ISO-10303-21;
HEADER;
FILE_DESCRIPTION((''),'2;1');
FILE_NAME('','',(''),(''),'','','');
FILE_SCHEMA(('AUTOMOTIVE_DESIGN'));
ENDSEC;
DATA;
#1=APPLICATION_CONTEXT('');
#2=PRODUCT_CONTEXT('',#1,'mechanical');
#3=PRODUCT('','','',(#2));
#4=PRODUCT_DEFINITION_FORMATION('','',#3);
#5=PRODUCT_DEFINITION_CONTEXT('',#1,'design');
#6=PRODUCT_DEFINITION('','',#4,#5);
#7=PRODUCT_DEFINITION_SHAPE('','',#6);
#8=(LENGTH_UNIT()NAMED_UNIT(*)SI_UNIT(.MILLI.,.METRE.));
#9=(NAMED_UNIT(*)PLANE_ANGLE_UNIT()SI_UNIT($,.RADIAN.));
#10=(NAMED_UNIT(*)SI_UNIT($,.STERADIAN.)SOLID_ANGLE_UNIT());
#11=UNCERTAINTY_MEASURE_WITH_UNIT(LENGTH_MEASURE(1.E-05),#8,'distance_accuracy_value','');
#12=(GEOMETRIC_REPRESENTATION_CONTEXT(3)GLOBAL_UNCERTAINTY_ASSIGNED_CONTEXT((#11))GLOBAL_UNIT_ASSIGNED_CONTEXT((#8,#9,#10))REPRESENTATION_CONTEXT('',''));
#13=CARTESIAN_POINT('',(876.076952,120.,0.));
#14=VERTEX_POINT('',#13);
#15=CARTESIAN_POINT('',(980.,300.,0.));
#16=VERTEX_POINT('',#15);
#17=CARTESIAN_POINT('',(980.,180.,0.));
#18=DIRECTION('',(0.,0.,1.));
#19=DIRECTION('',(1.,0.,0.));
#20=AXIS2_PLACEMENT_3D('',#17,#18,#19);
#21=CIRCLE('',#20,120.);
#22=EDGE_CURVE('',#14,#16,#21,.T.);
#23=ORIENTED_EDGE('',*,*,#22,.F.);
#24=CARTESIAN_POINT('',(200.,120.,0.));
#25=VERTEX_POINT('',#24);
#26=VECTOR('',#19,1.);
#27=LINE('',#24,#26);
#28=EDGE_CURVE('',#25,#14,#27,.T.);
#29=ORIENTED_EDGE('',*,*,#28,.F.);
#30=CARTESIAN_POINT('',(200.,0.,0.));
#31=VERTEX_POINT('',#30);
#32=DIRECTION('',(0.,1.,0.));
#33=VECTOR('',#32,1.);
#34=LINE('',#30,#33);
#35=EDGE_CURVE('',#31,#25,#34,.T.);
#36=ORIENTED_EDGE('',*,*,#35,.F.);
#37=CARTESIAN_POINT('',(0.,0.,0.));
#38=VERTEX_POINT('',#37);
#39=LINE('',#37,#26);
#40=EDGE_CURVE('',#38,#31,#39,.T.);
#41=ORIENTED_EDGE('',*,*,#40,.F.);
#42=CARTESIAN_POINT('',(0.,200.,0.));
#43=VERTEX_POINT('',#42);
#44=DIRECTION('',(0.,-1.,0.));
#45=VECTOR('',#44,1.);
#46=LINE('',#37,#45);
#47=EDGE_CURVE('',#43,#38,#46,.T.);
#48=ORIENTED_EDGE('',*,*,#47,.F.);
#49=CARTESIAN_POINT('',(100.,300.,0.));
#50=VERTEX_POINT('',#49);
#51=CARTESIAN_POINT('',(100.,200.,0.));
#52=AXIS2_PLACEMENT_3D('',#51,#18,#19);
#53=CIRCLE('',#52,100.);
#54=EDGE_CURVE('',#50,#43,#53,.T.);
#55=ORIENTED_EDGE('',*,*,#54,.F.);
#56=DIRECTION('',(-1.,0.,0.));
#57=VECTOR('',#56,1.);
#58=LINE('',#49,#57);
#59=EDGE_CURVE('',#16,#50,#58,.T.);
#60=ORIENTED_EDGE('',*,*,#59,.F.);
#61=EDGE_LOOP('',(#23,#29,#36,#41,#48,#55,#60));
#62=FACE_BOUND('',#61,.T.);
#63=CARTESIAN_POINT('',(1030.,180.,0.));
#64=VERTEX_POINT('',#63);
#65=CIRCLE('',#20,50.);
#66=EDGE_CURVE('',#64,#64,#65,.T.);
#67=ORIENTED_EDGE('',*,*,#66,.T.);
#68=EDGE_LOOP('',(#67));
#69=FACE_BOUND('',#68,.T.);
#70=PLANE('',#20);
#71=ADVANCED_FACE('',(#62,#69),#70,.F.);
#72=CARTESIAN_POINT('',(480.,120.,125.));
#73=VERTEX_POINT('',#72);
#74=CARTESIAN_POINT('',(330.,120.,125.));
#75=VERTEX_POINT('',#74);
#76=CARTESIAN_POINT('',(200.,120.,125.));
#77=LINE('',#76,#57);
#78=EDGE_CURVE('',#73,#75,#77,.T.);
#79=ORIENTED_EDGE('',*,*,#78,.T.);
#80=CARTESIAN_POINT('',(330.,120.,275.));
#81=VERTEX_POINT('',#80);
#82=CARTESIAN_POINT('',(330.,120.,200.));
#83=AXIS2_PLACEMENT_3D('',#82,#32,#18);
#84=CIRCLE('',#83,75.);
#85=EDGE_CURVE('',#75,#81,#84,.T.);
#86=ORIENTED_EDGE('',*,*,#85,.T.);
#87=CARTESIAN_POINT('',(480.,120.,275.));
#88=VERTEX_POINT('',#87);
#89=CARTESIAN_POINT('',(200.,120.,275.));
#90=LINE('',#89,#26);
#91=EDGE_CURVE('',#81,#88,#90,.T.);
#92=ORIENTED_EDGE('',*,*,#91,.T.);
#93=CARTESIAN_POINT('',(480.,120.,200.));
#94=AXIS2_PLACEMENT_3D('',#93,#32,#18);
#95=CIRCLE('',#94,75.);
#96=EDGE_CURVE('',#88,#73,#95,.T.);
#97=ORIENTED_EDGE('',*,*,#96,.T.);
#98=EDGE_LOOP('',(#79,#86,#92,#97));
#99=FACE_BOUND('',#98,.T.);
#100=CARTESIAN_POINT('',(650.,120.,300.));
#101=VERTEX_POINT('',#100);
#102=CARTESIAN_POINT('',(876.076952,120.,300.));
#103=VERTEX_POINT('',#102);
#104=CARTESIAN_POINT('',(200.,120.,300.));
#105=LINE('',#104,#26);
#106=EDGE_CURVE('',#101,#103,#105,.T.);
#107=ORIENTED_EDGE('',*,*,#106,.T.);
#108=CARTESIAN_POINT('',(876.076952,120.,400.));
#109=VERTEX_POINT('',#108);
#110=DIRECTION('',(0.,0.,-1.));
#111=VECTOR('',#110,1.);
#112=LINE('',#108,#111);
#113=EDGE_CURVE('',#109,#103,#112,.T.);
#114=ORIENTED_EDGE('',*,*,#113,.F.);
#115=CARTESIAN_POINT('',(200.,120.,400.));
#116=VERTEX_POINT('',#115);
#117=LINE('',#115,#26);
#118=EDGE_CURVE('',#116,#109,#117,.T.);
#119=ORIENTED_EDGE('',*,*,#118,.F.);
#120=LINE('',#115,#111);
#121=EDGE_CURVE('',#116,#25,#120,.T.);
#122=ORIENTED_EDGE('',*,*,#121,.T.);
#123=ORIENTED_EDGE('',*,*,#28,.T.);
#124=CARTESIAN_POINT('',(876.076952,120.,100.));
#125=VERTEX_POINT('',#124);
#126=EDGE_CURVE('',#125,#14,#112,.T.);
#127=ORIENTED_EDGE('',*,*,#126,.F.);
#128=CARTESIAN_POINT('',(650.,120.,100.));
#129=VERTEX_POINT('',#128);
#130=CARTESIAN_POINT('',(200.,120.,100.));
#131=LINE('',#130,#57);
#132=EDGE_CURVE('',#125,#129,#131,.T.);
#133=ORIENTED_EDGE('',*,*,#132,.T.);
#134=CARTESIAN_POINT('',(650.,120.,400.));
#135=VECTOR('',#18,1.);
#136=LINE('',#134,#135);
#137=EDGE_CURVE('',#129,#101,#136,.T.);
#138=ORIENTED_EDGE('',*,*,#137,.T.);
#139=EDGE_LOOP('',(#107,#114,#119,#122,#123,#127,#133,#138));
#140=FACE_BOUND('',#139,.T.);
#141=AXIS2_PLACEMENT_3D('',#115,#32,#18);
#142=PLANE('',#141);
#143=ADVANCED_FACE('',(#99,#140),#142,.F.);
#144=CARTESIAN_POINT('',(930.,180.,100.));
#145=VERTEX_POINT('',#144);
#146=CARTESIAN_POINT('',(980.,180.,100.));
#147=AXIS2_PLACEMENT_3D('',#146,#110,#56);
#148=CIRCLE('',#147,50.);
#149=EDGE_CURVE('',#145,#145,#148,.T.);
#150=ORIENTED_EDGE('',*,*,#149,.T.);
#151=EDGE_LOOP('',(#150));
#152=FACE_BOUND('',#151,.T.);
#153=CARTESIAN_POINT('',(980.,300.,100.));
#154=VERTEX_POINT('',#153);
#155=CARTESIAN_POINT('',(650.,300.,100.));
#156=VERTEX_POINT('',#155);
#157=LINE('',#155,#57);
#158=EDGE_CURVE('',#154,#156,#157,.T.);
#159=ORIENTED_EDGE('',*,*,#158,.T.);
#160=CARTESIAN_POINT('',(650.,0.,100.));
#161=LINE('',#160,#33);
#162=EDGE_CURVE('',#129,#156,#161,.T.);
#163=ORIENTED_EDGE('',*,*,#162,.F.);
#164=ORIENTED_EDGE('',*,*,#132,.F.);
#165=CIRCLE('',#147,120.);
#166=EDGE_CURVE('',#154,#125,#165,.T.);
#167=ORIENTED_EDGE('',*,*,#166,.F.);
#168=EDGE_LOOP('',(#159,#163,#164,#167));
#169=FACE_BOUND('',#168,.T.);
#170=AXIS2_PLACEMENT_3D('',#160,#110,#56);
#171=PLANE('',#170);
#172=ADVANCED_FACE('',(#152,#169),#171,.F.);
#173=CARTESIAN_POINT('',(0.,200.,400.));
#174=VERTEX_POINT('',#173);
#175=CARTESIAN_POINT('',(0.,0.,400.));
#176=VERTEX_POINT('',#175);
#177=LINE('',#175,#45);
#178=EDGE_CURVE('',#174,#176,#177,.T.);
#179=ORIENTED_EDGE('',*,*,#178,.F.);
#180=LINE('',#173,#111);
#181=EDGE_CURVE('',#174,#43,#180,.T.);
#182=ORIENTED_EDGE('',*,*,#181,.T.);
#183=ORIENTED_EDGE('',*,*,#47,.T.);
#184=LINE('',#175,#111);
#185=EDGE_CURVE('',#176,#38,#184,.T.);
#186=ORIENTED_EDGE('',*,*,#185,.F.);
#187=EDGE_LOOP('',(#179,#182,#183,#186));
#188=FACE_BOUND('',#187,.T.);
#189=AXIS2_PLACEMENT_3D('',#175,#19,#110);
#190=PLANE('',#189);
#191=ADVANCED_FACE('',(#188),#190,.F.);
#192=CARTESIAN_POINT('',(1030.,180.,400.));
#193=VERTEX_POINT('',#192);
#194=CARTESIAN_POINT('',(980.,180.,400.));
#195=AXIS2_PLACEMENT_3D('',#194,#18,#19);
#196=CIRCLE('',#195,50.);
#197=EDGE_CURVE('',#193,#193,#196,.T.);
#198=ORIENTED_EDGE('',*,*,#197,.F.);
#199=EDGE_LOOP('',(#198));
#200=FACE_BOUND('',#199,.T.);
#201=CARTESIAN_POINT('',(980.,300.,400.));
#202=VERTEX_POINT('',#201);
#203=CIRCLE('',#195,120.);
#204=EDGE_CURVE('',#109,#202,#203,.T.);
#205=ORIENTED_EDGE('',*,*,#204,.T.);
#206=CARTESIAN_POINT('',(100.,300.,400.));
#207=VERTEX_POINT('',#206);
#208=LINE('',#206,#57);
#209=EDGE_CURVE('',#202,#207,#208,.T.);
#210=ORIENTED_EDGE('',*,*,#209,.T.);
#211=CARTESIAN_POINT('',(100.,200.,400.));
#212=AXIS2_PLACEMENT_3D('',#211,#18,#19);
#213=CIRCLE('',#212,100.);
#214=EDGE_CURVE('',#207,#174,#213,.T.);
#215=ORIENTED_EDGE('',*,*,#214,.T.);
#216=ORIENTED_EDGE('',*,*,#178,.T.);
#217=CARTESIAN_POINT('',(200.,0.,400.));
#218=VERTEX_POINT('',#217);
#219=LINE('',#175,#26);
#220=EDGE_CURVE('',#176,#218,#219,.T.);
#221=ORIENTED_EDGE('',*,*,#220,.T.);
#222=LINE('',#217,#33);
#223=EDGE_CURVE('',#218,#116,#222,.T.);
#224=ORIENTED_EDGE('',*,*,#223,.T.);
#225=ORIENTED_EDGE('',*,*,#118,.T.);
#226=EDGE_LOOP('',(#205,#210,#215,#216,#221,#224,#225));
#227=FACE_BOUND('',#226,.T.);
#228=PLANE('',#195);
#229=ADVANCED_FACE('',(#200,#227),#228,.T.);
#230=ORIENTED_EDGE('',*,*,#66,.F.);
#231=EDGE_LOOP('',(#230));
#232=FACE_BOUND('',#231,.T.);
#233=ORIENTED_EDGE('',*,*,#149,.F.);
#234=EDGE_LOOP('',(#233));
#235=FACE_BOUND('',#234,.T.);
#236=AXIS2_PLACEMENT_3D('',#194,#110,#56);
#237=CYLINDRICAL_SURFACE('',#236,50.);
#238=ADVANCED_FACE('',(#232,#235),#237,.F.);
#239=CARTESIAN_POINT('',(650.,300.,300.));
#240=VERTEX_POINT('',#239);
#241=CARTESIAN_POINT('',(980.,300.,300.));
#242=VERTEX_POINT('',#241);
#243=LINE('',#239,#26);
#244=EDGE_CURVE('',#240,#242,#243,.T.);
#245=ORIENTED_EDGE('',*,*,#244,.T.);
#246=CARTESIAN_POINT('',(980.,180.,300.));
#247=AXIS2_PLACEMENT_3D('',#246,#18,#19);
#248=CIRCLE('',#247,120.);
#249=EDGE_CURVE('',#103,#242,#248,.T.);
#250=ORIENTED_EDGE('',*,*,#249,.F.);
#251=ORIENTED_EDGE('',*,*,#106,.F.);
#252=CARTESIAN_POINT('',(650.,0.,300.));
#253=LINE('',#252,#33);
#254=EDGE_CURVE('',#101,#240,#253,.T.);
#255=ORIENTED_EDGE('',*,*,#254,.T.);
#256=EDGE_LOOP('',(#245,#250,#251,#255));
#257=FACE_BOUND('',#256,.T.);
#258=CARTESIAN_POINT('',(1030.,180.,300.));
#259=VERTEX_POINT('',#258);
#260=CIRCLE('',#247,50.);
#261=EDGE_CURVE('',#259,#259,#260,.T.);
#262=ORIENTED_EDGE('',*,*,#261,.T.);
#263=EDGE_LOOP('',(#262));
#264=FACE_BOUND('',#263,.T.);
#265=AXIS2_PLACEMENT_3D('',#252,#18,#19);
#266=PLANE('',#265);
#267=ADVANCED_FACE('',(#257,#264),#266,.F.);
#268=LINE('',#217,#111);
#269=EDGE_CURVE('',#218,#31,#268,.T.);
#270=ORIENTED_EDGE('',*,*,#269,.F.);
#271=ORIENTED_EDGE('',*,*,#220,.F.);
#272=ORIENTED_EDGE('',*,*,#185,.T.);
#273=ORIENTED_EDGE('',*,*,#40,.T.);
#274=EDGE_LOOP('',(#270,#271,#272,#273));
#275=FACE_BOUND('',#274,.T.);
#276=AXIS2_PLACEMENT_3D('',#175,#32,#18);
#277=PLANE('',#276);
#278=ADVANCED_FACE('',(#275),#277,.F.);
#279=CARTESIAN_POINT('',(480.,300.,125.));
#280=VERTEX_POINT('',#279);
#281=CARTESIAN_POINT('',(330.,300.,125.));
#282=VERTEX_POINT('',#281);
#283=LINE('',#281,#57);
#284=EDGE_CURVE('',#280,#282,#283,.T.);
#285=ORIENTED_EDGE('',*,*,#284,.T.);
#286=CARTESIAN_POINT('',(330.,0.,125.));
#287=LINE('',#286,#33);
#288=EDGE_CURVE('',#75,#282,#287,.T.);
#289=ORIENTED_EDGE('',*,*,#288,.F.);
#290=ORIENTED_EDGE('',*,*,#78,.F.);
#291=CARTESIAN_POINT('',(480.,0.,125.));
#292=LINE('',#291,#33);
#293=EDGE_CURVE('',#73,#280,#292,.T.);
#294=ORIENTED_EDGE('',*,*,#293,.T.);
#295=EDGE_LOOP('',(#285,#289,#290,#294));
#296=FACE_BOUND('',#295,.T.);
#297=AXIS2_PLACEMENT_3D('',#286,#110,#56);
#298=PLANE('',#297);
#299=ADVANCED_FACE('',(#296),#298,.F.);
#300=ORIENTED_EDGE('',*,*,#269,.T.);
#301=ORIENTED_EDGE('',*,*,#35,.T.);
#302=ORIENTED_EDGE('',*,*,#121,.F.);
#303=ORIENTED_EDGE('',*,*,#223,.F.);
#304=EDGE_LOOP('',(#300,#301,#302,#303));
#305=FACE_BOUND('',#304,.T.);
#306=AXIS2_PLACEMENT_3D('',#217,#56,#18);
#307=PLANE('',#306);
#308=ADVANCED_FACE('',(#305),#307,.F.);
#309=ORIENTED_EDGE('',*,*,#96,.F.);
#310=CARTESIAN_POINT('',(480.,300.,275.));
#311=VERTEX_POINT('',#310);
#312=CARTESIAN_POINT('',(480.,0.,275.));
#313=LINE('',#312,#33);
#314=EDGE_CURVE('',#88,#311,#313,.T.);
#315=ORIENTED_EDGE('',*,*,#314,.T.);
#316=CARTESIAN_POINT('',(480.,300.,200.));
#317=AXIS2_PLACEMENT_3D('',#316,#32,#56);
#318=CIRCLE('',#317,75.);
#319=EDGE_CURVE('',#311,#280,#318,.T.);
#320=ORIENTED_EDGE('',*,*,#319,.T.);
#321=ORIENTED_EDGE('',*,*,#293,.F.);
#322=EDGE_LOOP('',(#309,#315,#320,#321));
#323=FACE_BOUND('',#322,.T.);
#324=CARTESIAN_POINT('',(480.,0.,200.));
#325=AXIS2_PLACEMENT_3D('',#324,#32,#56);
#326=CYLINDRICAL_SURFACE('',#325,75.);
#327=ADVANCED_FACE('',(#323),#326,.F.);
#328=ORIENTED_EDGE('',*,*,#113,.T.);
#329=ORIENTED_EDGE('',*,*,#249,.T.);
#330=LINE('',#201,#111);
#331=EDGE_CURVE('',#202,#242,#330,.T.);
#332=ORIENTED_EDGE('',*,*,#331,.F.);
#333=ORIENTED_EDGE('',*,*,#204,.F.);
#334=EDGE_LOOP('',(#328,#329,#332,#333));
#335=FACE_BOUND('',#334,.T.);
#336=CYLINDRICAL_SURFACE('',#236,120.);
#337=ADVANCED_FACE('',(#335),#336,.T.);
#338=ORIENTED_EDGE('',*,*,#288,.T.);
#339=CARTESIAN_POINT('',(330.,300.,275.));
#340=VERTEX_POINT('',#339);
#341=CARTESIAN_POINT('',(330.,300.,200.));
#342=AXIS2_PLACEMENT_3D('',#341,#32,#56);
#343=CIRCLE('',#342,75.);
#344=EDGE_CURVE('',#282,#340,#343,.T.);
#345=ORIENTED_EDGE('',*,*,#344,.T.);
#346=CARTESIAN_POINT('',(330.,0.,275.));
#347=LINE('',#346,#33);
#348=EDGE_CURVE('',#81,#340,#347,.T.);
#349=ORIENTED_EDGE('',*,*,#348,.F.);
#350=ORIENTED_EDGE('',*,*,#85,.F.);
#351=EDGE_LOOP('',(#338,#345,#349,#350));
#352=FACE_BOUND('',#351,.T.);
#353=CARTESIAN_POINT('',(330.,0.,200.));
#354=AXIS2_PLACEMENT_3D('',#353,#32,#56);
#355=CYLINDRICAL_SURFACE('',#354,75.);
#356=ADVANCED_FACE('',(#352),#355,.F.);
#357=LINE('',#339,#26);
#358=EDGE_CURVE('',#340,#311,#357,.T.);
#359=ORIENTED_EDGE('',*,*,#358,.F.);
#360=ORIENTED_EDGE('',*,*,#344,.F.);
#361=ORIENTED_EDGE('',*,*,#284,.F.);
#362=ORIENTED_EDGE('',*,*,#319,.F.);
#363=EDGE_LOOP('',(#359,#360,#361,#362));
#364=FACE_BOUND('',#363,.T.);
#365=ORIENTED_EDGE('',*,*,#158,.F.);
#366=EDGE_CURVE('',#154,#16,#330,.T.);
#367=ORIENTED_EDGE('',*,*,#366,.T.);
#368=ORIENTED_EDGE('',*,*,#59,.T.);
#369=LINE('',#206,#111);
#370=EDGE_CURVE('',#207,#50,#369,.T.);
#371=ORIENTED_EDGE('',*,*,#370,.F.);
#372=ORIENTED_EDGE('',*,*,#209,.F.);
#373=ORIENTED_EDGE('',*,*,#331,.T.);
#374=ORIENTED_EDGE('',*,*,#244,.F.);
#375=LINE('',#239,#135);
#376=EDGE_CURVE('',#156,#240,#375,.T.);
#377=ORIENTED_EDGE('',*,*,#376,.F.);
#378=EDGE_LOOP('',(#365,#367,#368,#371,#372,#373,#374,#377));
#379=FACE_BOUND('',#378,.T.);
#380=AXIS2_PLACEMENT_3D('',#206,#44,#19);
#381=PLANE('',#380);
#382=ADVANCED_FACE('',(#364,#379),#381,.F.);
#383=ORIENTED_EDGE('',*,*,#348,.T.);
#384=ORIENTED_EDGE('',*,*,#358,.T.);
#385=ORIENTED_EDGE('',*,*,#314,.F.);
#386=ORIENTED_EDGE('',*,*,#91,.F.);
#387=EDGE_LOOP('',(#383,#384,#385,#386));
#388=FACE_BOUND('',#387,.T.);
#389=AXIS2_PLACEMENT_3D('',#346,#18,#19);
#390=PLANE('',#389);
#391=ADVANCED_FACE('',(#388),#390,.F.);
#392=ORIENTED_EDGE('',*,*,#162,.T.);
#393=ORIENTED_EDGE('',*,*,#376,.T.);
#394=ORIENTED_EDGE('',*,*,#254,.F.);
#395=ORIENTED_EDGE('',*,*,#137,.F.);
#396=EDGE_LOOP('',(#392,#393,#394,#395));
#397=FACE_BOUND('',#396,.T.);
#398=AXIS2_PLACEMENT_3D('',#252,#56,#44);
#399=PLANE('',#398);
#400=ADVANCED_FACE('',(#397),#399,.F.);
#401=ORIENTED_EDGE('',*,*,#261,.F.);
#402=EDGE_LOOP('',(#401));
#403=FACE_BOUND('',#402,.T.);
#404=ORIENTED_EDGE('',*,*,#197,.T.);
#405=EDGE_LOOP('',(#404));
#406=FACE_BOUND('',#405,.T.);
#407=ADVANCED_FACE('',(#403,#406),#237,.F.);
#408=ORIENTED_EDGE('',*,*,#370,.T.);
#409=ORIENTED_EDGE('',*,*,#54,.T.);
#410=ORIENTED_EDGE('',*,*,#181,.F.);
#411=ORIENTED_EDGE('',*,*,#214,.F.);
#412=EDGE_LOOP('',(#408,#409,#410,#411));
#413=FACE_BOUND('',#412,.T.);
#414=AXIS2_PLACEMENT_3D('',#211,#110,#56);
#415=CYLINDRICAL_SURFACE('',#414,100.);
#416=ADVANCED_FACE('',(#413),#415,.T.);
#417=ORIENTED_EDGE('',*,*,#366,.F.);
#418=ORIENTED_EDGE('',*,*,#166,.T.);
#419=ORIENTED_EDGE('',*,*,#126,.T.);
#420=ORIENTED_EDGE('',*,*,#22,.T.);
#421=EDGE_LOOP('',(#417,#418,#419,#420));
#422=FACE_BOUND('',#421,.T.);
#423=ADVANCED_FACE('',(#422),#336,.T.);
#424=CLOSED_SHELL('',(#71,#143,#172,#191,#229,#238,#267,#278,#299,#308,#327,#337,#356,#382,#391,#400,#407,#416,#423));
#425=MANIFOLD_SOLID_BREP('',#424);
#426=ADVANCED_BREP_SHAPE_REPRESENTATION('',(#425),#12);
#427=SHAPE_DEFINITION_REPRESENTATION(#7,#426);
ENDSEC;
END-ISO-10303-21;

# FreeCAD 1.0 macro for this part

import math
import FreeCAD as App
import Part
import Sketcher
from FreeCAD import Vector
Q = App.Units.Quantity


def add_polygon(sketch, points):
    """Adds a closed chain of lines whose ends are joined by coincident constraints."""
    first, n = sketch.GeometryCount, len(points)
    for a, b in zip(points, points[1:] + points[:1]):
        sketch.addGeometry(Part.LineSegment(App.Vector(*a, 0), App.Vector(*b, 0)), False)
    for i in range(n):
        sketch.addConstraint(Sketcher.Constraint("Coincident", first + i, 2, first + (i + 1) % n, 1))

doc = App.newDocument("Part")
body = doc.addObject("PartDesign::Body", "Body")

sketch1 = body.newObject("Sketcher::SketchObject", "Sketch")
sketch1.AttachmentSupport = (doc.getObject("XY_Plane"), [""])
sketch1.MapMode = "FlatFace"
sketch1.addGeometry([
    Part.LineSegment(Vector(0, 200, 0), Vector(0, 0, 0)),
    Part.LineSegment(Vector(0, 0, 0), Vector(200, 0, 0)),
    Part.LineSegment(Vector(200, 0, 0), Vector(200, 120, 0)),
    Part.LineSegment(Vector(200, 120, 0), Vector(876.076952, 120, 0)),
    Part.ArcOfCircle(Part.Circle(Vector(980, 180, 0), Vector(0, 0, 1), 120), math.radians(-150), math.radians(90)),
    Part.LineSegment(Vector(980, 300, 0), Vector(100, 300, 0)),
    Part.ArcOfCircle(Part.Circle(Vector(100, 200, 0), Vector(0, 0, 1), 100), math.radians(90), math.radians(180)),
    Part.Circle(Vector(980, 180, 0), Vector(0, 0, 1), 50),
], False)
sketch1.addConstraint([
    Sketcher.Constraint("Coincident", 0, 2, 1, 1),
    Sketcher.Constraint("Coincident", 1, 2, 2, 1),
    Sketcher.Constraint("Coincident", 2, 2, 3, 1),
    Sketcher.Constraint("Coincident", 3, 2, 4, 1),
    Sketcher.Constraint("Tangent", 4, 2, 5, 1),
    Sketcher.Constraint("Tangent", 5, 2, 6, 1),
    Sketcher.Constraint("Tangent", 6, 2, 0, 1),
    Sketcher.Constraint("Vertical", 0),
    Sketcher.Constraint("Horizontal", 1),
    Sketcher.Constraint("Vertical", 2),
    Sketcher.Constraint("Horizontal", 3),
    Sketcher.Constraint("Horizontal", 5),
    Sketcher.Constraint("Coincident", 0, 2, -1, 1),
    Sketcher.Constraint("Coincident", 7, 3, 4, 3),
    Sketcher.Constraint("Equal", 1, 0),
    Sketcher.Constraint("Diameter", 7, Q("100 mm")),
    Sketcher.Constraint("Radius", 4, Q("120 mm")),
    Sketcher.Constraint("Radius", 6, Q("100 mm")),
    Sketcher.Constraint("DistanceX", 1, 1, 1, 2, Q("200 mm")),
    Sketcher.Constraint("DistanceX", 5, 2, 5, 1, Q("880 mm")),
    Sketcher.Constraint("DistanceY", 2, 1, 2, 2, Q("120 mm")),
])
pad1 = body.newObject("PartDesign::Pad", "Pad")
pad1.Profile = sketch1
pad1.Length = 400

sketch2 = body.newObject("Sketcher::SketchObject", "Sketch001")
sketch2.AttachmentSupport = (doc.getObject("XZ_Plane"), [""])
sketch2.MapMode = "FlatFace"
sketch2.AttachmentOffset = App.Placement(Vector(0, 0, -300), App.Rotation())
sketch2.addGeometry(Part.LineSegment(Vector(480, 125, 0), Vector(330, 125, 0)), False)
sketch2.addGeometry(Part.ArcOfCircle(Part.Circle(Vector(330, 200, 0), Vector(0, 0, 1), 75), math.radians(90), math.radians(270)), False)
sketch2.addGeometry(Part.LineSegment(Vector(330, 275, 0), Vector(480, 275, 0)), False)
sketch2.addGeometry(Part.ArcOfCircle(Part.Circle(Vector(480, 200, 0), Vector(0, 0, 1), 75), math.radians(-90), math.radians(90)), False)
add_polygon(sketch2, [(650, 100), (650, 300), (1250, 300), (1250, 100)])
sketch2.addConstraint([
    Sketcher.Constraint("Tangent", 0, 2, 1, 2),
    Sketcher.Constraint("Tangent", 1, 1, 2, 1),
    Sketcher.Constraint("Tangent", 2, 2, 3, 2),
    Sketcher.Constraint("Tangent", 3, 1, 0, 1),
    Sketcher.Constraint("Horizontal", 0),
    Sketcher.Constraint("Horizontal", 2),
    Sketcher.Constraint("Vertical", 4),
    Sketcher.Constraint("Horizontal", 5),
    Sketcher.Constraint("Vertical", 6),
    Sketcher.Constraint("Horizontal", 7),
    Sketcher.Constraint("Radius", 1, Q("75 mm")),
    Sketcher.Constraint("DistanceX", 0, 2, 0, 1, Q("150 mm")),
    Sketcher.Constraint("DistanceX", 5, 1, 5, 2, Q("600 mm")),
    Sketcher.Constraint("DistanceY", 4, 1, 4, 2, Q("200 mm")),
    Sketcher.Constraint("DistanceX", -1, 1, 1, 3, Q("330 mm")),
    Sketcher.Constraint("DistanceY", -1, 1, 1, 3, Q("200 mm")),
    Sketcher.Constraint("DistanceX", -1, 1, 4, 2, Q("650 mm")),
    Sketcher.Constraint("DistanceY", -1, 1, 4, 2, Q("300 mm")),
])
pocket1 = body.newObject("PartDesign::Pocket", "Pocket")
pocket1.Profile = sketch2
pocket1.Type = "ThroughAll"
pocket1.Reversed = True

doc.recompute()
